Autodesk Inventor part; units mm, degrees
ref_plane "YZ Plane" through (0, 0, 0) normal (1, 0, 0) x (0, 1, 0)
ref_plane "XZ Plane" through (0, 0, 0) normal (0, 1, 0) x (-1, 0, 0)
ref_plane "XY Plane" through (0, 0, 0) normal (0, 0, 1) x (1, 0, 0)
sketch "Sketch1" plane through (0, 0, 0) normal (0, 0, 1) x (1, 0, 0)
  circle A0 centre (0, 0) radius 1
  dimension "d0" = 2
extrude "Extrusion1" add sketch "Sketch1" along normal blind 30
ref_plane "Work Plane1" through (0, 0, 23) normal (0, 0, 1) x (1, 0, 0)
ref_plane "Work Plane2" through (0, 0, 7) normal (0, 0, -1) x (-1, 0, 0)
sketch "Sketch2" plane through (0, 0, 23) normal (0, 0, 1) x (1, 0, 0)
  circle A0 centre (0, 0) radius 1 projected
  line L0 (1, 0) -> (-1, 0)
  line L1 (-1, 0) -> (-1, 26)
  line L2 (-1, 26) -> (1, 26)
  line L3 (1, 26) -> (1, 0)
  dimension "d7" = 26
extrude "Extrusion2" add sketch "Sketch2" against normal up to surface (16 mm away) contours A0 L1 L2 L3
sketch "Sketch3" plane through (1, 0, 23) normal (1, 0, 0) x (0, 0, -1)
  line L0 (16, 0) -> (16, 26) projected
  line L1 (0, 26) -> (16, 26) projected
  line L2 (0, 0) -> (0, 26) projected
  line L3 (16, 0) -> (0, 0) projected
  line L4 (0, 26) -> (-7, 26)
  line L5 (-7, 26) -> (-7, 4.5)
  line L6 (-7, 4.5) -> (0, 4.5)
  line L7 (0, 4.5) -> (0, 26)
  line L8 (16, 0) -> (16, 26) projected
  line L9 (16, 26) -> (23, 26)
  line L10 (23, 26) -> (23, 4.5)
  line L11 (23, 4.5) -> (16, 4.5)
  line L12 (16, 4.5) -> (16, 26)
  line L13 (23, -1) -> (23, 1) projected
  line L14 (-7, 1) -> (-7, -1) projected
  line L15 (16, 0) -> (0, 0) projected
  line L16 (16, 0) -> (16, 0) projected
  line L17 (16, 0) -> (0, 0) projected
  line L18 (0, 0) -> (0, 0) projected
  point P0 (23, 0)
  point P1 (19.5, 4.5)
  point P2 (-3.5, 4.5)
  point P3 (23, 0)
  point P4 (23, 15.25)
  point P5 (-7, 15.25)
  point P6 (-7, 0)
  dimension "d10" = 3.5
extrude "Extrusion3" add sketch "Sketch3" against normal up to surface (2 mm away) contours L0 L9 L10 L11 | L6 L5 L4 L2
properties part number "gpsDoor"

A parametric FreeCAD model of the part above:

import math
import FreeCAD as App
import Part
import Sketcher
Q = App.Units.Quantity

doc = App.newDocument("Part")
body = doc.addObject("PartDesign::Body", "Body")

sketch1 = body.newObject("Sketcher::SketchObject", "Sketch")
sketch1.AttachmentSupport = (doc.getObject("XY_Plane"), [""])
sketch1.MapMode = "FlatFace"
sketch1.addGeometry(Part.Circle(App.Vector(0, 0, 0), App.Vector(0, 0, 1), 1), False)
sketch1.addConstraint(Sketcher.Constraint("Coincident", 0, 3, -1, 1))
sketch1.addConstraint(Sketcher.Constraint("Diameter", 0, Q("2 mm")))
pad1 = body.newObject("PartDesign::Pad", "Pad")
pad1.Profile = sketch1
pad1.Length = 30

sketch2 = body.newObject("Sketcher::SketchObject", "Sketch001")
sketch2.AttachmentSupport = (doc.getObject("XY_Plane"), [""])
sketch2.MapMode = "FlatFace"
sketch2.AttachmentOffset = App.Placement(App.Vector(0, 0, 23), App.Rotation())
sketch2.addGeometry(Part.ArcOfCircle(Part.Circle(App.Vector(0, 0, 0), App.Vector(0, 0, 1), 1), math.radians(0), math.radians(180)), False)
sketch2.addGeometry(Part.LineSegment(App.Vector(1, 0, 0), App.Vector(1, 26, 0)), False)
sketch2.addGeometry(Part.LineSegment(App.Vector(1, 26, 0), App.Vector(-1, 26, 0)), False)
sketch2.addGeometry(Part.LineSegment(App.Vector(-1, 26, 0), App.Vector(-1, 0, 0)), False)
sketch2.addConstraint(Sketcher.Constraint("Tangent", 0, 1, 1, 1))
sketch2.addConstraint(Sketcher.Constraint("Coincident", 1, 2, 2, 1))
sketch2.addConstraint(Sketcher.Constraint("Coincident", 2, 2, 3, 1))
sketch2.addConstraint(Sketcher.Constraint("Tangent", 3, 2, 0, 2))
sketch2.addConstraint(Sketcher.Constraint("Vertical", 1))
sketch2.addConstraint(Sketcher.Constraint("Horizontal", 2))
sketch2.addConstraint(Sketcher.Constraint("Vertical", 3))
sketch2.addConstraint(Sketcher.Constraint("Coincident", 0, 3, -1, 1))
sketch2.addConstraint(Sketcher.Constraint("DistanceY", 1, 1, 1, 2, Q("26 mm")))
sketch2.addConstraint(Sketcher.Constraint("Radius", 0, Q("1 mm")))
pad2 = body.newObject("PartDesign::Pad", "Pad001")
pad2.Profile = sketch2
pad2.Length = 16
pad2.Reversed = True

sketch3 = body.newObject("Sketcher::SketchObject", "Sketch002")
sketch3.AttachmentSupport = (doc.getObject("YZ_Plane"), [""])
sketch3.MapMode = "FlatFace"
sketch3.AttachmentOffset = App.Placement(App.Vector(0, 0, 1), App.Rotation())
sketch3.addGeometry(Part.LineSegment(App.Vector(26, 7, 0), App.Vector(4, 7, 0)), False)
sketch3.addGeometry(Part.LineSegment(App.Vector(4, 7, 0), App.Vector(4, 0, 0)), False)
sketch3.addGeometry(Part.LineSegment(App.Vector(4, 0, 0), App.Vector(26, 0, 0)), False)
sketch3.addGeometry(Part.LineSegment(App.Vector(26, 0, 0), App.Vector(26, 7, 0)), False)
sketch3.addGeometry(Part.LineSegment(App.Vector(4, 30, 0), App.Vector(4, 23, 0)), False)
sketch3.addGeometry(Part.LineSegment(App.Vector(4, 23, 0), App.Vector(26, 23, 0)), False)
sketch3.addGeometry(Part.LineSegment(App.Vector(26, 23, 0), App.Vector(26, 30, 0)), False)
sketch3.addGeometry(Part.LineSegment(App.Vector(26, 30, 0), App.Vector(4, 30, 0)), False)
sketch3.addConstraint(Sketcher.Constraint("Coincident", 0, 2, 1, 1))
sketch3.addConstraint(Sketcher.Constraint("Coincident", 1, 2, 2, 1))
sketch3.addConstraint(Sketcher.Constraint("Coincident", 2, 2, 3, 1))
sketch3.addConstraint(Sketcher.Constraint("Coincident", 3, 2, 0, 1))
sketch3.addConstraint(Sketcher.Constraint("Coincident", 4, 2, 5, 1))
sketch3.addConstraint(Sketcher.Constraint("Coincident", 5, 2, 6, 1))
sketch3.addConstraint(Sketcher.Constraint("Coincident", 6, 2, 7, 1))
sketch3.addConstraint(Sketcher.Constraint("Coincident", 7, 2, 4, 1))
sketch3.addConstraint(Sketcher.Constraint("Horizontal", 0))
sketch3.addConstraint(Sketcher.Constraint("Vertical", 1))
sketch3.addConstraint(Sketcher.Constraint("Horizontal", 2))
sketch3.addConstraint(Sketcher.Constraint("Vertical", 3))
sketch3.addConstraint(Sketcher.Constraint("Vertical", 4))
sketch3.addConstraint(Sketcher.Constraint("Horizontal", 5))
sketch3.addConstraint(Sketcher.Constraint("Vertical", 6))
sketch3.addConstraint(Sketcher.Constraint("Horizontal", 7))
sketch3.addConstraint(Sketcher.Constraint("PointOnObject", 1, 2, -1))
sketch3.addConstraint(Sketcher.Constraint("Vertical", 1, 2, 4, 2))
sketch3.addConstraint(Sketcher.Constraint("Vertical", 3, 2, 5, 2))
sketch3.addConstraint(Sketcher.Constraint("Equal", 3, 4))
sketch3.addConstraint(Sketcher.Constraint("DistanceY", 1, 2, 1, 1, Q("7 mm")))
sketch3.addConstraint(Sketcher.Constraint("DistanceX", 0, 2, 0, 1, Q("21.5 mm")))
sketch3.addConstraint(Sketcher.Constraint("DistanceX", -1, 1, 2, 2, Q("26 mm")))
sketch3.addConstraint(Sketcher.Constraint("DistanceY", -1, 1, 4, 2, Q("23 mm")))
pad3 = body.newObject("PartDesign::Pad", "Pad002")
pad3.Profile = sketch3
pad3.Length = 2
pad3.Reversed = True

doc.recompute()
